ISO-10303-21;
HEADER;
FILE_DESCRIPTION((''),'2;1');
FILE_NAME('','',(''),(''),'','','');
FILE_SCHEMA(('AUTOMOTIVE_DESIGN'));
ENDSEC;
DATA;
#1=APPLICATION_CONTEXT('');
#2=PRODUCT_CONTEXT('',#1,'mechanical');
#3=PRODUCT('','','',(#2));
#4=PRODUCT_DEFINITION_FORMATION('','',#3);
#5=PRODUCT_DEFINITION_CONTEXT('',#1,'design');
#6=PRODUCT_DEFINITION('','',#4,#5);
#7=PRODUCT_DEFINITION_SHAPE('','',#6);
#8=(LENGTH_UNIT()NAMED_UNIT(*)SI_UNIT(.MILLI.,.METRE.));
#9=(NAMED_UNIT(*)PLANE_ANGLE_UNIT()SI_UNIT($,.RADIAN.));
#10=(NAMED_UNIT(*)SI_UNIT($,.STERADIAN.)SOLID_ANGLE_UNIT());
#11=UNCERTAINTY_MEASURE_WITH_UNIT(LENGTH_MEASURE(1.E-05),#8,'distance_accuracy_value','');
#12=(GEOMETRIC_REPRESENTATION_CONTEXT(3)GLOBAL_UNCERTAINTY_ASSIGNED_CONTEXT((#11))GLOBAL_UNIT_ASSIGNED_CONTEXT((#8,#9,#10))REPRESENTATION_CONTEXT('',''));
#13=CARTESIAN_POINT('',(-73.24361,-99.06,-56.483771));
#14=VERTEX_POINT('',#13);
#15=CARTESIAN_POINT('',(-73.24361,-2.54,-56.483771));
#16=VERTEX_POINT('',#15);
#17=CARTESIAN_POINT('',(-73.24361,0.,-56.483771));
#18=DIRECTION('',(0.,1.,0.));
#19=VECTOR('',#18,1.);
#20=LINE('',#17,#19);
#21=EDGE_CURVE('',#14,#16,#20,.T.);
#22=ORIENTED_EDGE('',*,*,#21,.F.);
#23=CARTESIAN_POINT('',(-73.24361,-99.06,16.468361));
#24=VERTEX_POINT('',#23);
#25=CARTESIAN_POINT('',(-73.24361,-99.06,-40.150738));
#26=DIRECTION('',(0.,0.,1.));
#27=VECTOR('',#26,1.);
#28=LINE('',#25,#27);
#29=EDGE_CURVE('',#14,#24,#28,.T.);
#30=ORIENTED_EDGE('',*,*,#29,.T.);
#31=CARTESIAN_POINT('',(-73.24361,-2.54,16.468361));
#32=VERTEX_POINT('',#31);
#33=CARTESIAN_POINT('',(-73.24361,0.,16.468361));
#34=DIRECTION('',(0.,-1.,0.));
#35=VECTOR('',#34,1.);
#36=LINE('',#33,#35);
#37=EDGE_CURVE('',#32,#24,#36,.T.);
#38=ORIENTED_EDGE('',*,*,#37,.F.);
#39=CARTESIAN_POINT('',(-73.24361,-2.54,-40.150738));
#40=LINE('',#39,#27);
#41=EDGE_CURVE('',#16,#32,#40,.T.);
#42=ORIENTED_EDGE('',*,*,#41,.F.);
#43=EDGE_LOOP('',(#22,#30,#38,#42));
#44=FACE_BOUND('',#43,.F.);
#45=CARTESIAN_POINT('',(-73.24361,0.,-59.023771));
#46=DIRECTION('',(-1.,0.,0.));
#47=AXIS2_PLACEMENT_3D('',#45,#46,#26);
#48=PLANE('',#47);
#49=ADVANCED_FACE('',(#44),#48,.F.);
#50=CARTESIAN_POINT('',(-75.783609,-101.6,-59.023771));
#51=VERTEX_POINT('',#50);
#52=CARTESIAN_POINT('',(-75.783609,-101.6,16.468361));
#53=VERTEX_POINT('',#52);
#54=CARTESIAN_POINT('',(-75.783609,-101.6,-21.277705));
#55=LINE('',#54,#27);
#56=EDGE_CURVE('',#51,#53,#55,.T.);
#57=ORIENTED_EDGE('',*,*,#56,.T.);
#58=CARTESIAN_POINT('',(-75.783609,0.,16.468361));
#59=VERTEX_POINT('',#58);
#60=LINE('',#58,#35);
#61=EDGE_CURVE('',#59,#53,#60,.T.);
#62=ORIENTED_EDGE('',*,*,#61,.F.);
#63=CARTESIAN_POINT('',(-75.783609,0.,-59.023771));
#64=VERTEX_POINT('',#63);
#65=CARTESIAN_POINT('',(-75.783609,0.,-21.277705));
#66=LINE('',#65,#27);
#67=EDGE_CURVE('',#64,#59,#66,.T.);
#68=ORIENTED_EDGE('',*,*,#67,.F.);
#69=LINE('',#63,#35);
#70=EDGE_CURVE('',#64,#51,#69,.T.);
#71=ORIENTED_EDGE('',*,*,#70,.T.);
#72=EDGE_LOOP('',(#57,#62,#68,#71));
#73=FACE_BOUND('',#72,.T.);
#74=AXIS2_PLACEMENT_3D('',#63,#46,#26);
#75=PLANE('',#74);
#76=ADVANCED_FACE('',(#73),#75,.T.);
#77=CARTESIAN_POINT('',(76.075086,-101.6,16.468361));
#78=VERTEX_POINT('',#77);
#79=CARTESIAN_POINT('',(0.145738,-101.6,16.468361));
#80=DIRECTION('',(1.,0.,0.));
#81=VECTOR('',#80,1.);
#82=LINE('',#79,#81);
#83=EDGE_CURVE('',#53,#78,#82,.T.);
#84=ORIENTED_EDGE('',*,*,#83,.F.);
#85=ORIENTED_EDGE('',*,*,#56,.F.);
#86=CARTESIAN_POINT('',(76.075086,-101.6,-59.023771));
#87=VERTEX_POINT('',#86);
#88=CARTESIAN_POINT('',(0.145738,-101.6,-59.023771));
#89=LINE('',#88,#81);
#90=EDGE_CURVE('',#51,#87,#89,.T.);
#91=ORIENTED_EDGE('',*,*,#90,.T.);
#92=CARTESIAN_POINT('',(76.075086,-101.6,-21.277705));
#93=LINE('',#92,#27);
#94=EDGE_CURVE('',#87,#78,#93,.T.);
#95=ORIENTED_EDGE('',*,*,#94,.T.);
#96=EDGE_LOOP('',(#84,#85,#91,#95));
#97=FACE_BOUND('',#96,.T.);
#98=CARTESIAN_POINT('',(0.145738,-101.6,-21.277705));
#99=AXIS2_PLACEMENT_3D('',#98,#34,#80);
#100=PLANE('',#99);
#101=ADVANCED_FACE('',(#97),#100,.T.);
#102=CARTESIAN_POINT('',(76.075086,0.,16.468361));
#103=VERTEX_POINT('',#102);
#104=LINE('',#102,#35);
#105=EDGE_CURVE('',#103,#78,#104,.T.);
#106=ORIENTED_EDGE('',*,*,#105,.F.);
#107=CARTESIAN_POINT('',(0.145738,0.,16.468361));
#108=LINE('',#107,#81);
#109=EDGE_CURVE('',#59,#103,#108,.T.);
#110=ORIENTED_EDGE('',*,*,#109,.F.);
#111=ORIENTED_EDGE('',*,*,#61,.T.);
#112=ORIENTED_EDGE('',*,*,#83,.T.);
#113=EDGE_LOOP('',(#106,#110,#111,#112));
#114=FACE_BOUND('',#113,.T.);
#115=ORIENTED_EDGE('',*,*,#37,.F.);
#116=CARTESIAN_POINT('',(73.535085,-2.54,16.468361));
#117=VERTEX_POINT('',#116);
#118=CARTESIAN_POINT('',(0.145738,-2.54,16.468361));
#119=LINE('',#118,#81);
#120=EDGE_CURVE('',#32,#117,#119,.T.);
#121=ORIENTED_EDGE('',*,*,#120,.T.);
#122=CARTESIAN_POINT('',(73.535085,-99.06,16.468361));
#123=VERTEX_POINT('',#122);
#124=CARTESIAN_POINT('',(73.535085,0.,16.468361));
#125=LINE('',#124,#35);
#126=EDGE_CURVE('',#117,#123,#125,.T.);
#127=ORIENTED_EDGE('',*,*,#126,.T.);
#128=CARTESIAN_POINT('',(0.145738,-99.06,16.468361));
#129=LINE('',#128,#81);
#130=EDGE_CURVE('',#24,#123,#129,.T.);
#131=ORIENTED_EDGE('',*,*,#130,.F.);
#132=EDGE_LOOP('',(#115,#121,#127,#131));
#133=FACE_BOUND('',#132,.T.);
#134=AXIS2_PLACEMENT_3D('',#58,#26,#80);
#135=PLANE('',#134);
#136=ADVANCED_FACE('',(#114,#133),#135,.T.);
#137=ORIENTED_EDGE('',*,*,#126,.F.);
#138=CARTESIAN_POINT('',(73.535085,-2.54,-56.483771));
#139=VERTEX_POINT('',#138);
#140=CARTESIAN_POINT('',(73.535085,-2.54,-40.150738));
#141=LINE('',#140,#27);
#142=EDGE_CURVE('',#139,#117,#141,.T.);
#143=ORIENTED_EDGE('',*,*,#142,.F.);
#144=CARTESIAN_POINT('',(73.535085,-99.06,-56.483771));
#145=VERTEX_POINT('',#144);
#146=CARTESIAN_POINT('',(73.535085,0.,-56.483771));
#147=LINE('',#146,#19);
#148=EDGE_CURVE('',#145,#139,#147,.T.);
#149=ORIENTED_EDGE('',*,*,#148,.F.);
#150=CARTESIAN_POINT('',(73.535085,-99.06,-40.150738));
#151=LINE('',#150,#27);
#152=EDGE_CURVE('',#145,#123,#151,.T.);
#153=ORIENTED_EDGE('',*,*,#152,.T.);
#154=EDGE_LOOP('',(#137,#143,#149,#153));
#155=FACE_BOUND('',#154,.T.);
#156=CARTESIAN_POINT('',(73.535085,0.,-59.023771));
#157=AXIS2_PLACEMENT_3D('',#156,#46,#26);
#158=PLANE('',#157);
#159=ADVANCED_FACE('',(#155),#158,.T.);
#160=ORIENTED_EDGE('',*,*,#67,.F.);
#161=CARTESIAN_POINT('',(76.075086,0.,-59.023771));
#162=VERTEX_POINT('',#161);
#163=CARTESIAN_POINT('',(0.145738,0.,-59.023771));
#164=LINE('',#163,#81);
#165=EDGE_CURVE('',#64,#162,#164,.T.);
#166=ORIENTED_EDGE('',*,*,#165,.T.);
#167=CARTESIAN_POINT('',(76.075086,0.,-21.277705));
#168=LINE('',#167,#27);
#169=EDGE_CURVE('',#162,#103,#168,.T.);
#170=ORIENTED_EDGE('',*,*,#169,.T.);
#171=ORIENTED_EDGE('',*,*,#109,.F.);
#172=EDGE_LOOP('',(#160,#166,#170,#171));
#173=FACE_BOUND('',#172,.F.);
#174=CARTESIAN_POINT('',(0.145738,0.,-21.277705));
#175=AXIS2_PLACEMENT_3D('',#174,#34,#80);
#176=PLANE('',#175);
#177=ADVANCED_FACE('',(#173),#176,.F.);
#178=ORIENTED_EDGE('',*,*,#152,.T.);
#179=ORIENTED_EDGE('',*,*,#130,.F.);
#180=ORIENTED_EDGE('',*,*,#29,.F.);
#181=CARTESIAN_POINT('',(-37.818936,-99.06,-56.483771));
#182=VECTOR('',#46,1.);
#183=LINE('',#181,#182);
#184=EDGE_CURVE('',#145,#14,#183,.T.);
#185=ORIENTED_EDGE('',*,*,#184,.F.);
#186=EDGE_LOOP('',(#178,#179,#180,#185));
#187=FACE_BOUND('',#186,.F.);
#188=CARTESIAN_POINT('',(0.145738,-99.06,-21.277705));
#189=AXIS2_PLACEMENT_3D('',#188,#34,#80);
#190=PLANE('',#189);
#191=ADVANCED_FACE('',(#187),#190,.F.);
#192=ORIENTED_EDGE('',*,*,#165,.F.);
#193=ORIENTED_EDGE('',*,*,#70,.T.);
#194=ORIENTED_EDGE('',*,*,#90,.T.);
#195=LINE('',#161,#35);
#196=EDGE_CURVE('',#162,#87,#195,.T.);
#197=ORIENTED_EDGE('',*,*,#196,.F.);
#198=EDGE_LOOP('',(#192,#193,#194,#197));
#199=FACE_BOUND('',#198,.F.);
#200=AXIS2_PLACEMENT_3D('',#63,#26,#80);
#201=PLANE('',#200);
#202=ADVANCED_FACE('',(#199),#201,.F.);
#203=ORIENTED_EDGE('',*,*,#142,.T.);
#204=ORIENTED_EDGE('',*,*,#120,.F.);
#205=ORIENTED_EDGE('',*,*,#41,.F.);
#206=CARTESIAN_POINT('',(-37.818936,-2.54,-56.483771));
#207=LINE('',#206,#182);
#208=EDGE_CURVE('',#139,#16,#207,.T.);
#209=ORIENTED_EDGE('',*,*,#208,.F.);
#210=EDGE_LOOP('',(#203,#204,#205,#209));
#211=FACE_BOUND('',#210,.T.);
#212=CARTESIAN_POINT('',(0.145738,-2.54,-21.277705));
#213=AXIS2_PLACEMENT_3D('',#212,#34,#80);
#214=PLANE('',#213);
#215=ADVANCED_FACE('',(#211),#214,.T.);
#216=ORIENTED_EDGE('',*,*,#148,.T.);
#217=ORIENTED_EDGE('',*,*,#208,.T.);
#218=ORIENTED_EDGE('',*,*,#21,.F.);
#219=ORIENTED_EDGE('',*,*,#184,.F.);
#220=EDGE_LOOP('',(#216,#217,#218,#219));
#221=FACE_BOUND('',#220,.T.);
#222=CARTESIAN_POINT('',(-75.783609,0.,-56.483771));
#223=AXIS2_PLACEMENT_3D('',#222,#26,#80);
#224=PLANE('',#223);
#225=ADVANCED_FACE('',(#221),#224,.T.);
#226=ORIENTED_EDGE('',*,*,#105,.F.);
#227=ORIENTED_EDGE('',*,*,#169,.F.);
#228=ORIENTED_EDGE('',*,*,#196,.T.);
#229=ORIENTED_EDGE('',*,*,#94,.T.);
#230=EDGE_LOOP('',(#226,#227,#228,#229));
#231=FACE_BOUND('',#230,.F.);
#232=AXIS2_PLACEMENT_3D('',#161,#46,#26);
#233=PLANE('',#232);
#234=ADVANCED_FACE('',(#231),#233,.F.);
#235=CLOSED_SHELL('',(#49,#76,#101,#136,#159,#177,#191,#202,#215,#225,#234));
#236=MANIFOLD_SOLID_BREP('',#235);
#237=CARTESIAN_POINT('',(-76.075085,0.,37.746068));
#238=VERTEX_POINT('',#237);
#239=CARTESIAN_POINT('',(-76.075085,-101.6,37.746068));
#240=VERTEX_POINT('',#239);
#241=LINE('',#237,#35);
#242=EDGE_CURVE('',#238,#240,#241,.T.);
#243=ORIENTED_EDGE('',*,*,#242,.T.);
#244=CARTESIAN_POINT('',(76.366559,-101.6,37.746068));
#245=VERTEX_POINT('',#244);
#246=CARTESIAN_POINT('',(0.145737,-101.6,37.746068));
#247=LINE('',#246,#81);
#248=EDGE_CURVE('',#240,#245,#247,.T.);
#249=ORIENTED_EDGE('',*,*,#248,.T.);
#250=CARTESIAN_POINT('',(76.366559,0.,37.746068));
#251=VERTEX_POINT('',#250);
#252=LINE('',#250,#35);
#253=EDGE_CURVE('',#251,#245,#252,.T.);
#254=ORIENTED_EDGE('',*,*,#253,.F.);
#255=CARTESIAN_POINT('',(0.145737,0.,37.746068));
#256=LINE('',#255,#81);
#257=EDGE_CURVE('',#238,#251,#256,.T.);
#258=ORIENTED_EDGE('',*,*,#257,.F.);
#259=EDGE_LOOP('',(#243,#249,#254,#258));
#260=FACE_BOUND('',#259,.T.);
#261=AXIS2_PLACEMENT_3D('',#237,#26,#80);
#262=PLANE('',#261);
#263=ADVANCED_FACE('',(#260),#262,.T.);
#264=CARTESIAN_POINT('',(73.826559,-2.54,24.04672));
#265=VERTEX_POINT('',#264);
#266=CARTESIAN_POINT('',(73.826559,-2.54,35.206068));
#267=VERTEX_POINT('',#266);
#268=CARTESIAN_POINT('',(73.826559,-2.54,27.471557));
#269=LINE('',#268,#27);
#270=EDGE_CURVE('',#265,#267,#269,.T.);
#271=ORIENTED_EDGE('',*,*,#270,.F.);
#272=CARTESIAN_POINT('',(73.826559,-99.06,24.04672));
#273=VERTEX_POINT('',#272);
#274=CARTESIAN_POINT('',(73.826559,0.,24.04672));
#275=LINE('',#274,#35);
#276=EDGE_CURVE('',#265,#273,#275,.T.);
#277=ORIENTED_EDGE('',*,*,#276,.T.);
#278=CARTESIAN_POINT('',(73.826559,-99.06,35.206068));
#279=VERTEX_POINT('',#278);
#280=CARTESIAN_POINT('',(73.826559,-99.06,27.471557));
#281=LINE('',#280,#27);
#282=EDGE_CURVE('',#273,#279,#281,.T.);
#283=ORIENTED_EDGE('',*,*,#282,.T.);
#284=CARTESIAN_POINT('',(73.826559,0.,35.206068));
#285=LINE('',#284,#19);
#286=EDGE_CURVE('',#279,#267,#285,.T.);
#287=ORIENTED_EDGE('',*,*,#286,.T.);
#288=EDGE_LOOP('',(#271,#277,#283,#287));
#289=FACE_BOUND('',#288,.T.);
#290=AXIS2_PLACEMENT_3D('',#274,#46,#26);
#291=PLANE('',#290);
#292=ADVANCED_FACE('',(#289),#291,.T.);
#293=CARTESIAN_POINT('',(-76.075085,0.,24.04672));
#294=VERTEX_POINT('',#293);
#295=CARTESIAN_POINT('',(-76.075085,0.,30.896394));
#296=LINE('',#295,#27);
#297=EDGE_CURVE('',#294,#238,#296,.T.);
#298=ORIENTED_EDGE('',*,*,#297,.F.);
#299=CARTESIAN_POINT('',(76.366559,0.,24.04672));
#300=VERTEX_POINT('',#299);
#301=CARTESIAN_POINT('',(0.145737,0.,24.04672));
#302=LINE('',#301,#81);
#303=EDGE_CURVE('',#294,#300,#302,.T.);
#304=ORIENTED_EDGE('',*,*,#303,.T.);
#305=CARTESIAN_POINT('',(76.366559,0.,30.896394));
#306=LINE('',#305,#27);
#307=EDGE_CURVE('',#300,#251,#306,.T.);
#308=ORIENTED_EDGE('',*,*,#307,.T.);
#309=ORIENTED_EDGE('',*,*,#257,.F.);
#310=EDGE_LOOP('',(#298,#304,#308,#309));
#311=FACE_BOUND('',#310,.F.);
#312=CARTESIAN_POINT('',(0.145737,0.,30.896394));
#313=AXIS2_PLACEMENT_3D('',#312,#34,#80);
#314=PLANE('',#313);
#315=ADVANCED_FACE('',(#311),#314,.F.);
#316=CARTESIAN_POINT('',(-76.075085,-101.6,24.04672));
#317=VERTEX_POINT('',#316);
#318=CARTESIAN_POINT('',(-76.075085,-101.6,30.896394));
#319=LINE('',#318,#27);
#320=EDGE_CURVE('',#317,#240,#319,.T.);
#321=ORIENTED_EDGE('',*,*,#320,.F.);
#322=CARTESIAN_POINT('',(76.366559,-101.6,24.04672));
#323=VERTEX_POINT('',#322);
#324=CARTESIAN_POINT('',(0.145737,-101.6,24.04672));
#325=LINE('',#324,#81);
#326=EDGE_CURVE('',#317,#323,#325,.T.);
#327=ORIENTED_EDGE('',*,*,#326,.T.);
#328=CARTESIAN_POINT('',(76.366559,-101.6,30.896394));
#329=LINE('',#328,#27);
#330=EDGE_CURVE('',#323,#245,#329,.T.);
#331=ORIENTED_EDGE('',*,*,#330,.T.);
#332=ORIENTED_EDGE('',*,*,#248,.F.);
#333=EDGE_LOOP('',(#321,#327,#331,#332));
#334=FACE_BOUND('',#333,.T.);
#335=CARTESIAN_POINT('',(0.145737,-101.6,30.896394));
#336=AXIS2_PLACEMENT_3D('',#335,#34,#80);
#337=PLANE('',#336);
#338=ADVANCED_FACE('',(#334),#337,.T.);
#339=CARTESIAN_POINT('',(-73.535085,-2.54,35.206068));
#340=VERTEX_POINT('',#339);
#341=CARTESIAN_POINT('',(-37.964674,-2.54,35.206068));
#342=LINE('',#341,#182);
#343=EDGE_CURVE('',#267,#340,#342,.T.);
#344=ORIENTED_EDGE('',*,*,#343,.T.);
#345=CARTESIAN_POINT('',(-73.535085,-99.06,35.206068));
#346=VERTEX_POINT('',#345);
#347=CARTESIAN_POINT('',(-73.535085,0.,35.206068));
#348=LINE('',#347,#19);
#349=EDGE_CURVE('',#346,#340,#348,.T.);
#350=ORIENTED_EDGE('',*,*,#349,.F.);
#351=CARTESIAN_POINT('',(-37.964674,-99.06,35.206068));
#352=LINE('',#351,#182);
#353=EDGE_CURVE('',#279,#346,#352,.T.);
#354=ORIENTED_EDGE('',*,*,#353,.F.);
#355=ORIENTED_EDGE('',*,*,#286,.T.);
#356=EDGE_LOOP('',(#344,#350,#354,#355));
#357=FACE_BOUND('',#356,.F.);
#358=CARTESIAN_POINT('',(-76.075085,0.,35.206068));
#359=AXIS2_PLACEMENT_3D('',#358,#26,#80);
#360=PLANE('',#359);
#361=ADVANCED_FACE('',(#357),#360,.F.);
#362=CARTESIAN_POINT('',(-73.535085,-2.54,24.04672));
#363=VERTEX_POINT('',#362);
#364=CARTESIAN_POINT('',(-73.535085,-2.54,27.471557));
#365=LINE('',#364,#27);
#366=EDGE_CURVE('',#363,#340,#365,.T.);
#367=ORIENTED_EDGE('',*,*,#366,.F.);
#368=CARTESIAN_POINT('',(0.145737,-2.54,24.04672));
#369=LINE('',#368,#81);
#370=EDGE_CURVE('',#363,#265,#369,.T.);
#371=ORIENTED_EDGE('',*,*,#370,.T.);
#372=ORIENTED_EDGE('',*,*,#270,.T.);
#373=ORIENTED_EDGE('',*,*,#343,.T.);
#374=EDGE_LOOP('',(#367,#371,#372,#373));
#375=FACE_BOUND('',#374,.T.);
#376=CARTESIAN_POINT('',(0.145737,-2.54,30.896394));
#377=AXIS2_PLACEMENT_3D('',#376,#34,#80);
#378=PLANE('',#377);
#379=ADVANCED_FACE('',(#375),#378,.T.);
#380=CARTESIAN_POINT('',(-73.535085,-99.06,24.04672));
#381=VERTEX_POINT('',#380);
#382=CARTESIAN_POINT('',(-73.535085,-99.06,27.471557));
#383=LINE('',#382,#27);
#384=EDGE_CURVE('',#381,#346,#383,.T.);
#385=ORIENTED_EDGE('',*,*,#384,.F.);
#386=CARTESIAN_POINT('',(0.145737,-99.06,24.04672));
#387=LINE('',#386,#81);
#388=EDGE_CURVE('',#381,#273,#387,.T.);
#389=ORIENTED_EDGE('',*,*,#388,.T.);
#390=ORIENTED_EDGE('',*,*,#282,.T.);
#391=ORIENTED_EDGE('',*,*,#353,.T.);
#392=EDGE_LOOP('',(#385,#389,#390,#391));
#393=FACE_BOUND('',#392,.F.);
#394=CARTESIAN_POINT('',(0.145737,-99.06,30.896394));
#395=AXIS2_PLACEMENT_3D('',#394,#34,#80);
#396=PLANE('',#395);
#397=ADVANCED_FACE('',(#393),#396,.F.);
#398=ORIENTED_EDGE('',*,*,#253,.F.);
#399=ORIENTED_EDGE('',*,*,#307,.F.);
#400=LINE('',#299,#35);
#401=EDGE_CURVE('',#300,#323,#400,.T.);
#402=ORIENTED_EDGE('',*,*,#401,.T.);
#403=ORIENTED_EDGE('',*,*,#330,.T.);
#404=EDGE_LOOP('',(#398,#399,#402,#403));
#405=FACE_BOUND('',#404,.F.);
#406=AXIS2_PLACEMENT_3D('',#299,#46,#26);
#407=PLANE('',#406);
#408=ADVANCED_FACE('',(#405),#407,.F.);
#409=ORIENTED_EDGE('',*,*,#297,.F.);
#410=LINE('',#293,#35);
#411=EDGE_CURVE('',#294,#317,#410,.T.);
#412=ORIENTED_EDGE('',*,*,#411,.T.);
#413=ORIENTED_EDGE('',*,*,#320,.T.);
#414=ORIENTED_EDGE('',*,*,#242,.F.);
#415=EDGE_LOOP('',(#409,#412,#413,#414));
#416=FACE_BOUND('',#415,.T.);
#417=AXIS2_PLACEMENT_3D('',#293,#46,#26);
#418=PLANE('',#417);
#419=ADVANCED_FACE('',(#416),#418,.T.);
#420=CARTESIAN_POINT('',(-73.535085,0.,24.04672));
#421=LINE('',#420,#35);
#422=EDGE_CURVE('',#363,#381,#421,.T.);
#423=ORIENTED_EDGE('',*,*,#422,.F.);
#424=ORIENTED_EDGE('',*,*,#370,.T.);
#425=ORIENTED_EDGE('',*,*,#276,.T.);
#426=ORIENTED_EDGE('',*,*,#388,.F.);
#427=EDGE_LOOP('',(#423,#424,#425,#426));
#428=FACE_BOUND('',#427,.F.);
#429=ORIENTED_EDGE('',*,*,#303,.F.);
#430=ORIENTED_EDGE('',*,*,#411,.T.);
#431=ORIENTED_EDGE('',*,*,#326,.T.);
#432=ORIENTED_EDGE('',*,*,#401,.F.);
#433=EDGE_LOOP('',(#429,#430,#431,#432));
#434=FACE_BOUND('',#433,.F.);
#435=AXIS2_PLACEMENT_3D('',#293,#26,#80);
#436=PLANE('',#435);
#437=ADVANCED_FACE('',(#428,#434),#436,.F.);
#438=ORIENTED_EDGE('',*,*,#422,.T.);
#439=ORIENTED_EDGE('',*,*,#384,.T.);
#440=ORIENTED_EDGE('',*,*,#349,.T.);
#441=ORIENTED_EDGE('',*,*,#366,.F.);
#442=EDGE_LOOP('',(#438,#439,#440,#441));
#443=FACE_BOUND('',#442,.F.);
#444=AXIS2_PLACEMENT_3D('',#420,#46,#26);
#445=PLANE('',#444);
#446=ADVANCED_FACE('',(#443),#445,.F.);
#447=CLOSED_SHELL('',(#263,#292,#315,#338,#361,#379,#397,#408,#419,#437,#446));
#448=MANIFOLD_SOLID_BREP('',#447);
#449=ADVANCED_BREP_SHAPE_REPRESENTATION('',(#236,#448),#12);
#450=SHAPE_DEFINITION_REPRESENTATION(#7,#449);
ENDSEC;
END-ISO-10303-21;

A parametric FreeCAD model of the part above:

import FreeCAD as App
import Part
import Sketcher

V = App.Vector
Q = App.Units.Quantity


def faces_at(feature, points):
    """Names of the faces that lie closest to the given points."""
    faces = feature.Shape.Faces
    near = lambda p: min(range(len(faces)), key=lambda i: faces[i].distToShape(Part.Vertex(*p))[0])
    return sorted({f"Face{near(p) + 1}" for p in points})


def add_polygon(sketch, points):
    """Adds a closed chain of lines whose ends are joined by coincident constraints."""
    first, n = sketch.GeometryCount, len(points)
    for a, b in zip(points, points[1:] + points[:1]):
        sketch.addGeometry(Part.LineSegment(App.Vector(*a, 0), App.Vector(*b, 0)), False)
    for i in range(n):
        sketch.addConstraint(Sketcher.Constraint("Coincident", first + i, 2, first + (i + 1) % n, 1))

doc = App.newDocument("Part")
body = doc.addObject("PartDesign::Body", "Body")

# Sketch on XZ plane
sketch1 = body.newObject("Sketcher::SketchObject", "Sketch")
sketch1.AttachmentSupport = (doc.getObject("XZ_Plane"), [""])
sketch1.MapMode = "FlatFace"
add_polygon(sketch1, [(-75.783609, 16.468361), (-75.783609, -59.023771), (76.075086, -59.023771), (76.075086, 16.468361)])  # lines 0-3
sketch1.addConstraint([
    Sketcher.Constraint("Vertical", 0),
    Sketcher.Constraint("Horizontal", 1),
    Sketcher.Constraint("Vertical", 2),
    Sketcher.Constraint("Horizontal", 3),
    Sketcher.Constraint("DistanceY", 0, 2, 0, 1, 75.492132),
    Sketcher.Constraint("DistanceX", 1, 1, 1, 2, 151.858695),
    Sketcher.Constraint("DistanceX", 0, 2, -1, 1, 75.783609),
    Sketcher.Constraint("DistanceY", 0, 2, -1, 1, 59.023771),
])
pad1 = body.newObject("PartDesign::Pad", "Pad")
pad1.Profile = sketch1
pad1.Length = Q("4 in")
doc.recompute()

thickness = body.newObject("PartDesign::Thickness", "Thickness")
thickness.Base = (pad1, faces_at(pad1, [(0.146, -50.8, 16.468)]))
thickness.Value = Q("0.1 in")
thickness.Reversed = True
thickness.Join = "Arc"
body2 = doc.addObject("PartDesign::Body", "Body001")

# Sketch on XZ plane
sketch2 = body2.newObject("Sketcher::SketchObject", "Sketch001")
sketch2.AttachmentSupport = (doc.getObject("XZ_Plane001"), [""])
sketch2.MapMode = "FlatFace"
add_polygon(sketch2, [(-76.075085, 37.746068), (-76.075085, 24.04672), (76.366559, 24.04672), (76.366559, 37.746068)])  # lines 0-3
sketch2.addConstraint([
    Sketcher.Constraint("Vertical", 0),
    Sketcher.Constraint("Horizontal", 1),
    Sketcher.Constraint("Vertical", 2),
    Sketcher.Constraint("Horizontal", 3),
    Sketcher.Constraint("DistanceX", 1, 1, 1, 2, 152.441644),
    Sketcher.Constraint("DistanceY", 0, 2, 0, 1, 13.699347),
    Sketcher.Constraint("DistanceY", -1, 1, 0, 2, 24.04672),
    Sketcher.Constraint("DistanceX", -1, 1, 1, 2, 76.366559),
])
pad2 = body2.newObject("PartDesign::Pad", "Pad001")
pad2.Profile = sketch2
pad2.Length = Q("4 in")
doc.recompute()

thickness2 = body2.newObject("PartDesign::Thickness", "Thickness001")
thickness2.Base = (pad2, faces_at(pad2, [(0.146, -50.8, 24.047)]))
thickness2.Value = Q("0.1 in")
thickness2.Reversed = True
thickness2.Join = "Arc"

doc.recompute()
